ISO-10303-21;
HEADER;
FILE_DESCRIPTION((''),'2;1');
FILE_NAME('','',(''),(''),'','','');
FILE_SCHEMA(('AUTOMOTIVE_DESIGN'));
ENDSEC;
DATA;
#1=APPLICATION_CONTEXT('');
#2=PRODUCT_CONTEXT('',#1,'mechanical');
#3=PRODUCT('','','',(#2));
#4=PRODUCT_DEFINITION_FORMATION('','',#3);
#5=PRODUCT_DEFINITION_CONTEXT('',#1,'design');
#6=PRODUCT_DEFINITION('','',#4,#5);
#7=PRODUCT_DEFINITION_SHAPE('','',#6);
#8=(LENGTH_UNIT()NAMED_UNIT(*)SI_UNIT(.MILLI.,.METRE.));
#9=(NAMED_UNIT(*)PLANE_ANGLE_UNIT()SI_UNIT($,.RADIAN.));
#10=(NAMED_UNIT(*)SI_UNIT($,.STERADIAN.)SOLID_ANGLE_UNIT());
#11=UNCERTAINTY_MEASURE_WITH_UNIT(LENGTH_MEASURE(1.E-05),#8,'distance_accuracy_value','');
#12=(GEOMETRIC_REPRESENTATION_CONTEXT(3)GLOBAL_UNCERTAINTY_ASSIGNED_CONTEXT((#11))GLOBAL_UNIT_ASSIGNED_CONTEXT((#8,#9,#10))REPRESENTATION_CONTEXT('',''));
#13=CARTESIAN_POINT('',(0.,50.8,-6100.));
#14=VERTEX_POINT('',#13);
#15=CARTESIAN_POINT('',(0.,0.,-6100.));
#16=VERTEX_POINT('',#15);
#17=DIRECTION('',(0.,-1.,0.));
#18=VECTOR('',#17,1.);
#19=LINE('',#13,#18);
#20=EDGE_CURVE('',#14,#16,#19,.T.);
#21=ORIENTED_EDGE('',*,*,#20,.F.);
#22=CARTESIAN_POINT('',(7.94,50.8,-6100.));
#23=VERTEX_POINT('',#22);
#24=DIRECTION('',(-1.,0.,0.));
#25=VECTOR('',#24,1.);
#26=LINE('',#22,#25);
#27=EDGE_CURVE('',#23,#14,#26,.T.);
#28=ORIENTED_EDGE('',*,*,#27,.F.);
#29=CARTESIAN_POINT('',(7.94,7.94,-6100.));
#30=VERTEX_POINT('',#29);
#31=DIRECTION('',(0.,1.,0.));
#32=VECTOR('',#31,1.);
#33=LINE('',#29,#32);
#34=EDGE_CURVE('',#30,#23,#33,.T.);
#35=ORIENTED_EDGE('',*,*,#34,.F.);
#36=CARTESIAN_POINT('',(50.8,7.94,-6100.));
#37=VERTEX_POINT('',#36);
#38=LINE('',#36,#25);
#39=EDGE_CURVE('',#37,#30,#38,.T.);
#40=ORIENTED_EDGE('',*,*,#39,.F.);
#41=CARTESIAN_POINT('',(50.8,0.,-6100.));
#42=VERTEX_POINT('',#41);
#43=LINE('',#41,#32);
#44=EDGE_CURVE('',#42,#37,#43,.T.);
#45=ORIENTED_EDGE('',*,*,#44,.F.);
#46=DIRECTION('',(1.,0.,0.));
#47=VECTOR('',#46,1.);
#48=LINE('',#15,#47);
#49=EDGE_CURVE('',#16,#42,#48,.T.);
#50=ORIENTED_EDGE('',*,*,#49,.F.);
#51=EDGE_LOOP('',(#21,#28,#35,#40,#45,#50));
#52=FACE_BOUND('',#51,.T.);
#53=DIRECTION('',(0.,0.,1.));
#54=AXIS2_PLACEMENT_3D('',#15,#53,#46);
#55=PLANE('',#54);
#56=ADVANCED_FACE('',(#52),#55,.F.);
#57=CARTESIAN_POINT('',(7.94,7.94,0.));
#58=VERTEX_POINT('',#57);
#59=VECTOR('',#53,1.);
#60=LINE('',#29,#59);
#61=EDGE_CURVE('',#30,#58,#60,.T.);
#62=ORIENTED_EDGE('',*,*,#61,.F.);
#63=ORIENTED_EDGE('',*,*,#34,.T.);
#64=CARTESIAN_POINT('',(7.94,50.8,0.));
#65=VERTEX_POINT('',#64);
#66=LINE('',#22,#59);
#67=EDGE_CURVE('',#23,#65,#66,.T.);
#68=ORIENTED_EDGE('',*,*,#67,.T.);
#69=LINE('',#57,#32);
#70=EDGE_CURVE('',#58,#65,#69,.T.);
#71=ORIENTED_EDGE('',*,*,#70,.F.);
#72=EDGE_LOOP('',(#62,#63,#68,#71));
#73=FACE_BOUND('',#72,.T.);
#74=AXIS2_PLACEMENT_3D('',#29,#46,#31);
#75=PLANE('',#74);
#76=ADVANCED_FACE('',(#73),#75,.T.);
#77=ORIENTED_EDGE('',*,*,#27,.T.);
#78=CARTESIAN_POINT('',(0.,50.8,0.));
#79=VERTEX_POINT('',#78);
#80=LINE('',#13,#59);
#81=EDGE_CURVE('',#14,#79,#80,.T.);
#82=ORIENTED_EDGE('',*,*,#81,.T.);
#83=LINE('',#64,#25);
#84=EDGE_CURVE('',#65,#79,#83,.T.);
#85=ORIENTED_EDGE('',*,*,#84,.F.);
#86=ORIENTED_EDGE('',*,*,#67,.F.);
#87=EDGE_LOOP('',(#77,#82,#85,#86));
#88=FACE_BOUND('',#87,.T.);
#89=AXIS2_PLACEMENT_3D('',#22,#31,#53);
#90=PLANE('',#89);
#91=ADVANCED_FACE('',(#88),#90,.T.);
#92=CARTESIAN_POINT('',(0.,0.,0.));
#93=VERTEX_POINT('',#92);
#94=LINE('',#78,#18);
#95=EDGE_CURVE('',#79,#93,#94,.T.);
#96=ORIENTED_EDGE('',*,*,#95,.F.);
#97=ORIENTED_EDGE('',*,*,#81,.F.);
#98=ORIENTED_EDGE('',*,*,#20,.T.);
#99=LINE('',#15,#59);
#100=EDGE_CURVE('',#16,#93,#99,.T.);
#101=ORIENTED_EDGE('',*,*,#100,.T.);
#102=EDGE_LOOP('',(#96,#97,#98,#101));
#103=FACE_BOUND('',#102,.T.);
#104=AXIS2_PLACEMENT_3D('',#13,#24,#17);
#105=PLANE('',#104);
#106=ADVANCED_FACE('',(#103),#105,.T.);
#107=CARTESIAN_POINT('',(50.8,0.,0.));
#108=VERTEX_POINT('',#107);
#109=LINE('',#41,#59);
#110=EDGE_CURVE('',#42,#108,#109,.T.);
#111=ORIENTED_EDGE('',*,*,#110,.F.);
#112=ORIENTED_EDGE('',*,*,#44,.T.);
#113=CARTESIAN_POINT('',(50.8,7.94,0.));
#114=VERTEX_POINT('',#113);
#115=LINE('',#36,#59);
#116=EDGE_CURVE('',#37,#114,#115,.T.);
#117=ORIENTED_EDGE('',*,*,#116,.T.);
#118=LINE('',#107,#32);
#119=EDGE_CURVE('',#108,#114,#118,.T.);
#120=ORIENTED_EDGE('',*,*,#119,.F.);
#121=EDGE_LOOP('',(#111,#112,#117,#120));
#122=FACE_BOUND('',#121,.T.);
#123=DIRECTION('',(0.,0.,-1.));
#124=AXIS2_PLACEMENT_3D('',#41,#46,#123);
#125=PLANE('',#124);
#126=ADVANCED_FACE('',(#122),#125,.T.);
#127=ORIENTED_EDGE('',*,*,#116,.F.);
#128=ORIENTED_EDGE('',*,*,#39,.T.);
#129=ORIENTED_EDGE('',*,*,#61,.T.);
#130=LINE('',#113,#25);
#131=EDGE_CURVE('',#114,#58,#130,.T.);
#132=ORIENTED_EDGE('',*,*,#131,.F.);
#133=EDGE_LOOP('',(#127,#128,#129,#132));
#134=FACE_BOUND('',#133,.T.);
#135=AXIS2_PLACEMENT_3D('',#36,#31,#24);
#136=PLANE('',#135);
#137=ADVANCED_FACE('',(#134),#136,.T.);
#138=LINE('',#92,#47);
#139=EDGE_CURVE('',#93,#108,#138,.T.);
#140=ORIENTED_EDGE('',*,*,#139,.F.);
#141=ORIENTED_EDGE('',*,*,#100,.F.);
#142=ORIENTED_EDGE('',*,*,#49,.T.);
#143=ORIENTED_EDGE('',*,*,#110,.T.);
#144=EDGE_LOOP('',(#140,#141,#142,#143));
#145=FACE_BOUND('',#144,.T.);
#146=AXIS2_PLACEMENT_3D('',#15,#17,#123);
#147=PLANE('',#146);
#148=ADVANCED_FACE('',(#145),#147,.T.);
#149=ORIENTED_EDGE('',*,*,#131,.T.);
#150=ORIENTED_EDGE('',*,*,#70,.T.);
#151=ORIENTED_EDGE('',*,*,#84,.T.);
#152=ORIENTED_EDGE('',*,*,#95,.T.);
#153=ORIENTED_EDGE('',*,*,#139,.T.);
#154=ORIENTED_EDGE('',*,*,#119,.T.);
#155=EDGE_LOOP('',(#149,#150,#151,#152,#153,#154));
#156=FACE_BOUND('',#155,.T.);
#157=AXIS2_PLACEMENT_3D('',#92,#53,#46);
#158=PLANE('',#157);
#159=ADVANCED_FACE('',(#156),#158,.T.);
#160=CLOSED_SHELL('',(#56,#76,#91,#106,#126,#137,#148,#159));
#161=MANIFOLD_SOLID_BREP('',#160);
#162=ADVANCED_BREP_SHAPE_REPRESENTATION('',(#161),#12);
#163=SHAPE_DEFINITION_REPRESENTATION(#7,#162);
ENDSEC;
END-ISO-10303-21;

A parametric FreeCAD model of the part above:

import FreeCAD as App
import Part
import Sketcher
from FreeCAD import Vector
Q = App.Units.Quantity

doc = App.newDocument("Part")
body = doc.addObject("PartDesign::Body", "Body")

sketch1 = body.newObject("Sketcher::SketchObject", "Sketch")
sketch1.AttachmentSupport = (doc.getObject("XY_Plane"), [""])
sketch1.MapMode = "FlatFace"
sketch1.addGeometry(Part.LineSegment(Vector(0, 51, 0), Vector(0, 0, 0)), False)
sketch1.addGeometry(Part.LineSegment(Vector(0, 0, 0), Vector(51, 0, 0)), False)
sketch1.addGeometry(Part.LineSegment(Vector(51, 0, 0), Vector(51, 8, 0)), False)
sketch1.addGeometry(Part.LineSegment(Vector(51, 8, 0), Vector(8, 8, 0)), False)
sketch1.addGeometry(Part.LineSegment(Vector(8, 8, 0), Vector(8, 51, 0)), False)
sketch1.addGeometry(Part.LineSegment(Vector(8, 51, 0), Vector(0, 51, 0)), False)
sketch1.addConstraint(Sketcher.Constraint("Coincident", 0, 2, 1, 1))
sketch1.addConstraint(Sketcher.Constraint("Coincident", 1, 2, 2, 1))
sketch1.addConstraint(Sketcher.Constraint("Coincident", 2, 2, 3, 1))
sketch1.addConstraint(Sketcher.Constraint("Coincident", 3, 2, 4, 1))
sketch1.addConstraint(Sketcher.Constraint("Coincident", 4, 2, 5, 1))
sketch1.addConstraint(Sketcher.Constraint("Coincident", 5, 2, 0, 1))
sketch1.addConstraint(Sketcher.Constraint("Vertical", 0))
sketch1.addConstraint(Sketcher.Constraint("Horizontal", 1))
sketch1.addConstraint(Sketcher.Constraint("Vertical", 2))
sketch1.addConstraint(Sketcher.Constraint("Horizontal", 3))
sketch1.addConstraint(Sketcher.Constraint("Vertical", 4))
sketch1.addConstraint(Sketcher.Constraint("Horizontal", 5))
sketch1.addConstraint(Sketcher.Constraint("Coincident", 0, 2, -1, 1))
sketch1.addConstraint(Sketcher.Constraint("Equal", 1, 0))
sketch1.addConstraint(Sketcher.Constraint("Equal", 5, 2))
sketch1.addConstraint(Sketcher.Constraint("DistanceX", 1, 1, 1, 2, Q("50.8 mm")))
sketch1.addConstraint(Sketcher.Constraint("DistanceX", 3, 2, 3, 1, Q("42.86 mm")))
pad1 = body.newObject("PartDesign::Pad", "Pad")
pad1.Profile = sketch1
pad1.Length = 6100
pad1.Reversed = True

doc.recompute()
